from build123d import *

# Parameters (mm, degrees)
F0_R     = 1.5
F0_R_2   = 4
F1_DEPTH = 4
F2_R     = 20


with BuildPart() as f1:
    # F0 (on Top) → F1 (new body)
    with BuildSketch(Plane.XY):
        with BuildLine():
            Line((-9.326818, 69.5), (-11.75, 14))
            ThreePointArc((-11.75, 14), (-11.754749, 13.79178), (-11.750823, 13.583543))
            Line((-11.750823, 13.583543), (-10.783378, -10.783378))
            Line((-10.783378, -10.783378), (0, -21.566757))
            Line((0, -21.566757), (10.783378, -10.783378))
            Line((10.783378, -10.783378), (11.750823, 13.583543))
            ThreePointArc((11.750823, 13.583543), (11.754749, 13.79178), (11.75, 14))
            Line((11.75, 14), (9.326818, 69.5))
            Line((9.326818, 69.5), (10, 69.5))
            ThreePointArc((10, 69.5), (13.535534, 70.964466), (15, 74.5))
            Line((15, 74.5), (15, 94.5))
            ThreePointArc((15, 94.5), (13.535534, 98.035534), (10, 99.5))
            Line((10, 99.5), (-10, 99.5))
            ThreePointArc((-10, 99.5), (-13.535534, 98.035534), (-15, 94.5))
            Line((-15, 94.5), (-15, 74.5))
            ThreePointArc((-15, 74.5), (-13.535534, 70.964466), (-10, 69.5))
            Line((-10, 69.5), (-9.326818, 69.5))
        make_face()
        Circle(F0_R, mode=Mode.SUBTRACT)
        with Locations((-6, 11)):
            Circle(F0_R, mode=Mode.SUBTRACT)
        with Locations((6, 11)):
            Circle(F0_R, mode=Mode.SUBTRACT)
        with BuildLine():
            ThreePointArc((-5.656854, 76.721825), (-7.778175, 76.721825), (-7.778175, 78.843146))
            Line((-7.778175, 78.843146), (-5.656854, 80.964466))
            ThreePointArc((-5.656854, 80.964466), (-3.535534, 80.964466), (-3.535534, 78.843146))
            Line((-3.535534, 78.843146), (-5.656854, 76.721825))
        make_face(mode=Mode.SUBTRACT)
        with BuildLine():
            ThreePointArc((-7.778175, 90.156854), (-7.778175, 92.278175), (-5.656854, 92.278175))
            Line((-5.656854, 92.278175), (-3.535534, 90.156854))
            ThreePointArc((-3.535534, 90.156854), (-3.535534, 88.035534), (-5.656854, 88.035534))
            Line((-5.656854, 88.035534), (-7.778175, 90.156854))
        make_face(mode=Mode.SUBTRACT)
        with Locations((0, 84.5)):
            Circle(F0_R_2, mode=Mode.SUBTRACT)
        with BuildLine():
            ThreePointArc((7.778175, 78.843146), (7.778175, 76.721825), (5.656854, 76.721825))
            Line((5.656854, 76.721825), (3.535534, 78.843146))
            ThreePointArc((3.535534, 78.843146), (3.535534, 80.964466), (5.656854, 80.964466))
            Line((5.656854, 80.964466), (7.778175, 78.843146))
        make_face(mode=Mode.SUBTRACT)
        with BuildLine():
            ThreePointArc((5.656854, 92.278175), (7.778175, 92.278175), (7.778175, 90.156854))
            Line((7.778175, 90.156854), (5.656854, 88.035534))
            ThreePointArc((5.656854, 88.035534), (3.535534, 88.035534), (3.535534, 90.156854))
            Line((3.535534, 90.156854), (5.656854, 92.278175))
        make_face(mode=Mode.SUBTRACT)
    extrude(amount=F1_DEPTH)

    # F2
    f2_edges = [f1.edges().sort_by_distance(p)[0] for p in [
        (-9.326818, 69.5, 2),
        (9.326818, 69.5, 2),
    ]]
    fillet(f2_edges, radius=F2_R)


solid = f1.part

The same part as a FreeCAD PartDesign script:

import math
import FreeCAD as App
import Part
import Sketcher

V = App.Vector
Q = App.Units.Quantity


def edges_at(feature, points):
    """Names of the edges that pass closest to the given points."""
    edges = feature.Shape.Edges
    near = lambda p: min(range(len(edges)), key=lambda i: edges[i].distToShape(Part.Vertex(*p))[0])
    return sorted({f"Edge{near(p) + 1}" for p in points})

doc = App.newDocument("Part")
body = doc.addObject("PartDesign::Body", "Body")

# Sketch on XY plane
sketch1 = body.newObject("Sketcher::SketchObject", "Sketch")
sketch1.AttachmentSupport = (doc.getObject("XY_Plane"), [""])
sketch1.MapMode = "FlatFace"
sketch1.addGeometry(Part.LineSegment(V(-9.33, 69.5, 0), V(-11.75, 14, 0)), False)
sketch1.addGeometry(Part.ArcOfCircle(Part.Circle(V(-6.75, 13.78, 0), V(0, 0, 1), 5), math.radians(177.5), math.radians(182.27)), False)
sketch1.addGeometry(Part.LineSegment(V(-11.75, 13.58, 0), V(-10.78, -10.78, 0)), False)
sketch1.addGeometry(Part.LineSegment(V(-10.78, -10.78, 0), V(0, -21.57, 0)), False)
sketch1.addGeometry(Part.LineSegment(V(0, -21.57, 0), V(10.78, -10.78, 0)), False)
sketch1.addGeometry(Part.LineSegment(V(10.78, -10.78, 0), V(11.75, 13.58, 0)), False)
sketch1.addGeometry(Part.ArcOfCircle(Part.Circle(V(6.75, 13.78, 0), V(0, 0, 1), 5), math.radians(-2.27), math.radians(2.5)), False)
sketch1.addGeometry(Part.LineSegment(V(11.75, 14, 0), V(9.33, 69.5, 0)), False)
sketch1.addGeometry(Part.LineSegment(V(9.33, 69.5, 0), V(10, 69.5, 0)), False)
sketch1.addGeometry(Part.ArcOfCircle(Part.Circle(V(10, 74.5, 0), V(0, 0, 1), 5), math.radians(-90), math.radians(0)), False)
sketch1.addGeometry(Part.LineSegment(V(15, 74.5, 0), V(15, 94.5, 0)), False)
sketch1.addGeometry(Part.ArcOfCircle(Part.Circle(V(10, 94.5, 0), V(0, 0, 1), 5), math.radians(0), math.radians(90)), False)
sketch1.addGeometry(Part.LineSegment(V(10, 99.5, 0), V(-10, 99.5, 0)), False)
sketch1.addGeometry(Part.ArcOfCircle(Part.Circle(V(-10, 94.5, 0), V(0, 0, 1), 5), math.radians(90), math.radians(180)), False)
sketch1.addGeometry(Part.LineSegment(V(-15, 94.5, 0), V(-15, 74.5, 0)), False)
sketch1.addGeometry(Part.ArcOfCircle(Part.Circle(V(-10, 74.5, 0), V(0, 0, 1), 5), math.radians(180), math.radians(270)), False)
sketch1.addGeometry(Part.LineSegment(V(-10, 69.5, 0), V(-9.33, 69.5, 0)), False)
sketch1.addGeometry(Part.Circle(V(-6, 11, 0), V(0, 0, 1), 1.5), False)
sketch1.addGeometry(Part.Circle(V(0, 0, 0), V(0, 0, 1), 1.5), False)
sketch1.addGeometry(Part.Circle(V(6, 11, 0), V(0, 0, 1), 1.5), False)
sketch1.addGeometry(Part.LineSegment(V(-3.54, 78.84, 0), V(-5.66, 76.72, 0)), False)
sketch1.addGeometry(Part.ArcOfCircle(Part.Circle(V(-6.72, 77.78, 0), V(0, 0, 1), 1.5), math.radians(135), math.radians(315)), False)
sketch1.addGeometry(Part.LineSegment(V(-7.78, 78.84, 0), V(-5.66, 80.96, 0)), False)
sketch1.addGeometry(Part.ArcOfCircle(Part.Circle(V(-4.6, 79.9, 0), V(0, 0, 1), 1.5), math.radians(-45), math.radians(135)), False)
sketch1.addGeometry(Part.LineSegment(V(-5.66, 88.04, 0), V(-7.78, 90.16, 0)), False)
sketch1.addGeometry(Part.ArcOfCircle(Part.Circle(V(-6.72, 91.22, 0), V(0, 0, 1), 1.5), math.radians(45), math.radians(225)), False)
sketch1.addGeometry(Part.LineSegment(V(-5.66, 92.28, 0), V(-3.54, 90.16, 0)), False)
sketch1.addGeometry(Part.ArcOfCircle(Part.Circle(V(-4.6, 89.1, 0), V(0, 0, 1), 1.5), math.radians(-135), math.radians(45)), False)
sketch1.addGeometry(Part.Circle(V(0, 84.5, 0), V(0, 0, 1), 4), False)
sketch1.addGeometry(Part.LineSegment(V(5.66, 80.96, 0), V(7.78, 78.84, 0)), False)
sketch1.addGeometry(Part.ArcOfCircle(Part.Circle(V(6.72, 77.78, 0), V(0, 0, 1), 1.5), math.radians(-135), math.radians(45)), False)
sketch1.addGeometry(Part.LineSegment(V(5.66, 76.72, 0), V(3.54, 78.84, 0)), False)
sketch1.addGeometry(Part.ArcOfCircle(Part.Circle(V(4.6, 79.9, 0), V(0, 0, 1), 1.5), math.radians(45), math.radians(225)), False)
sketch1.addGeometry(Part.LineSegment(V(3.54, 90.16, 0), V(5.66, 92.28, 0)), False)
sketch1.addGeometry(Part.ArcOfCircle(Part.Circle(V(6.72, 91.22, 0), V(0, 0, 1), 1.5), math.radians(-45), math.radians(135)), False)
sketch1.addGeometry(Part.LineSegment(V(7.78, 90.16, 0), V(5.66, 88.04, 0)), False)
sketch1.addGeometry(Part.ArcOfCircle(Part.Circle(V(4.6, 89.1, 0), V(0, 0, 1), 1.5), math.radians(135), math.radians(315)), False)
sketch1.addConstraint(Sketcher.Constraint("Coincident", 0, 2, 1, 1))
sketch1.addConstraint(Sketcher.Constraint("Coincident", 1, 2, 2, 1))
sketch1.addConstraint(Sketcher.Constraint("Coincident", 2, 2, 3, 1))
sketch1.addConstraint(Sketcher.Constraint("Coincident", 3, 2, 4, 1))
sketch1.addConstraint(Sketcher.Constraint("Coincident", 4, 2, 5, 1))
sketch1.addConstraint(Sketcher.Constraint("Coincident", 5, 2, 6, 1))
sketch1.addConstraint(Sketcher.Constraint("Coincident", 6, 2, 7, 1))
sketch1.addConstraint(Sketcher.Constraint("Coincident", 7, 2, 8, 1))
sketch1.addConstraint(Sketcher.Constraint("Tangent", 8, 2, 9, 1))
sketch1.addConstraint(Sketcher.Constraint("Tangent", 9, 2, 10, 1))
sketch1.addConstraint(Sketcher.Constraint("Tangent", 10, 2, 11, 1))
sketch1.addConstraint(Sketcher.Constraint("Tangent", 11, 2, 12, 1))
sketch1.addConstraint(Sketcher.Constraint("Tangent", 12, 2, 13, 1))
sketch1.addConstraint(Sketcher.Constraint("Tangent", 13, 2, 14, 1))
sketch1.addConstraint(Sketcher.Constraint("Tangent", 14, 2, 15, 1))
sketch1.addConstraint(Sketcher.Constraint("Tangent", 15, 2, 16, 1))
sketch1.addConstraint(Sketcher.Constraint("Coincident", 16, 2, 0, 1))
sketch1.addConstraint(Sketcher.Constraint("Tangent", 20, 2, 21, 2))
sketch1.addConstraint(Sketcher.Constraint("Tangent", 21, 1, 22, 1))
sketch1.addConstraint(Sketcher.Constraint("Tangent", 22, 2, 23, 2))
sketch1.addConstraint(Sketcher.Constraint("Tangent", 23, 1, 20, 1))
sketch1.addConstraint(Sketcher.Constraint("Tangent", 24, 2, 25, 2))
sketch1.addConstraint(Sketcher.Constraint("Tangent", 25, 1, 26, 1))
sketch1.addConstraint(Sketcher.Constraint("Tangent", 26, 2, 27, 2))
sketch1.addConstraint(Sketcher.Constraint("Tangent", 27, 1, 24, 1))
sketch1.addConstraint(Sketcher.Constraint("Tangent", 29, 2, 30, 2))
sketch1.addConstraint(Sketcher.Constraint("Tangent", 30, 1, 31, 1))
sketch1.addConstraint(Sketcher.Constraint("Tangent", 31, 2, 32, 2))
sketch1.addConstraint(Sketcher.Constraint("Tangent", 32, 1, 29, 1))
sketch1.addConstraint(Sketcher.Constraint("Tangent", 33, 2, 34, 2))
sketch1.addConstraint(Sketcher.Constraint("Tangent", 34, 1, 35, 1))
sketch1.addConstraint(Sketcher.Constraint("Tangent", 35, 2, 36, 2))
sketch1.addConstraint(Sketcher.Constraint("Tangent", 36, 1, 33, 1))
sketch1.addConstraint(Sketcher.Constraint("Horizontal", 8))
sketch1.addConstraint(Sketcher.Constraint("Vertical", 10))
sketch1.addConstraint(Sketcher.Constraint("Horizontal", 12))
sketch1.addConstraint(Sketcher.Constraint("Vertical", 14))
sketch1.addConstraint(Sketcher.Constraint("Horizontal", 16))
sketch1.addConstraint(Sketcher.Constraint("Coincident", 18, 3, -1, 1))
sketch1.addConstraint(Sketcher.Constraint("Equal", 1, 6))
sketch1.addConstraint(Sketcher.Constraint("Equal", 9, 11))
sketch1.addConstraint(Sketcher.Constraint("Equal", 11, 13))
sketch1.addConstraint(Sketcher.Constraint("Equal", 13, 15))
sketch1.addConstraint(Sketcher.Constraint("Equal", 17, 18))
sketch1.addConstraint(Sketcher.Constraint("Equal", 18, 19))
sketch1.addConstraint(Sketcher.Constraint("Equal", 19, 21))
sketch1.addConstraint(Sketcher.Constraint("Equal", 21, 23))
sketch1.addConstraint(Sketcher.Constraint("Equal", 23, 25))
sketch1.addConstraint(Sketcher.Constraint("Equal", 25, 27))
sketch1.addConstraint(Sketcher.Constraint("Equal", 27, 30))
sketch1.addConstraint(Sketcher.Constraint("Equal", 30, 32))
sketch1.addConstraint(Sketcher.Constraint("Equal", 32, 34))
sketch1.addConstraint(Sketcher.Constraint("Equal", 34, 36))
sketch1.addConstraint(Sketcher.Constraint("Symmetric", 1, 3, 6, 3, -2))
sketch1.addConstraint(Sketcher.Constraint("Symmetric", 9, 3, 15, 3, -2))
sketch1.addConstraint(Sketcher.Constraint("Symmetric", 17, 3, 19, 3, -2))
sketch1.addConstraint(Sketcher.Constraint("Symmetric", 21, 3, 30, 3, -2))
sketch1.addConstraint(Sketcher.Constraint("Symmetric", 23, 3, 32, 3, -2))
sketch1.addConstraint(Sketcher.Constraint("Symmetric", 25, 3, 34, 3, -2))
sketch1.addConstraint(Sketcher.Constraint("Symmetric", 27, 3, 36, 3, -2))
sketch1.addConstraint(Sketcher.Constraint("Symmetric", 2, 2, 4, 2, -2))
sketch1.addConstraint(Sketcher.Constraint("PointOnObject", 28, 3, -2))
sketch1.addConstraint(Sketcher.Constraint("PointOnObject", 3, 2, -2))
sketch1.addConstraint(Sketcher.Constraint("Perpendicular", 3, 4))
sketch1.addConstraint(Sketcher.Constraint("Parallel", 4, 20))
sketch1.addConstraint(Sketcher.Constraint("Perpendicular", 22, 24))
sketch1.addConstraint(Sketcher.Constraint("Horizontal", 1, 2, 5, 2))
sketch1.addConstraint(Sketcher.Constraint("Horizontal", 0, 2, 6, 2))
sketch1.addConstraint(Sketcher.Constraint("Horizontal", 21, 1, 23, 1))
sketch1.addConstraint(Sketcher.Constraint("Horizontal", 24, 2, 26, 2))
sketch1.addConstraint(Sketcher.Constraint("Vertical", 21, 3, 25, 3))
sketch1.addConstraint(Sketcher.Constraint("Equal", 8, 16))
sketch1.addConstraint(Sketcher.Constraint("Equal", 12, 10))
sketch1.addConstraint(Sketcher.Constraint("Diameter", 17, Q("3 mm")))
sketch1.addConstraint(Sketcher.Constraint("Diameter", 28, Q("8 mm")))
sketch1.addConstraint(Sketcher.Constraint("Radius", 9, Q("5 mm")))
sketch1.addConstraint(Sketcher.Constraint("DistanceX", 12, 2, 12, 1, Q("20 mm")))
sketch1.addConstraint(Sketcher.Constraint("DistanceX", 17, 3, -1, 1, Q("6 mm")))
sketch1.addConstraint(Sketcher.Constraint("DistanceY", -1, 1, 17, 3, Q("11 mm")))
sketch1.addConstraint(Sketcher.Constraint("DistanceY", -1, 1, 0, 2, Q("14 mm")))
sketch1.addConstraint(Sketcher.Constraint("Angle", 0, Q("-92.5 deg")))
sketch1.addConstraint(Sketcher.Constraint("DistanceY", 9, 3, 28, 3, Q("10 mm")))
sketch1.addConstraint(Sketcher.Constraint("DistanceY", -1, 1, 9, 3, Q("74.5 mm")))
sketch1.addConstraint(Sketcher.Constraint("Distance", 3, Q("15.25 mm")))
sketch1.addConstraint(Sketcher.Constraint("DistanceX", 0, 2, -1, 1, Q("11.75 mm")))
sketch1.addConstraint(Sketcher.Constraint("Radius", 1, Q("5.000347 mm")))
sketch1.addConstraint(Sketcher.Constraint("DistanceY", -1, 1, 1, 3, Q("13.781898 mm")))
sketch1.addConstraint(Sketcher.Constraint("Distance", 2, Q("24.386119 mm")))
sketch1.addConstraint(Sketcher.Constraint("DistanceY", 2, 2, -1, 1, Q("10.783378 mm")))
sketch1.addConstraint(Sketcher.Constraint("DistanceY", 23, 3, 25, 3, Q("11.313708 mm")))
sketch1.addConstraint(Sketcher.Constraint("DistanceX", 23, 3, 30, 3, Q("11.313709 mm")))
sketch1.addConstraint(Sketcher.Constraint("DistanceY", -1, 1, 21, 3, Q("77.782486 mm")))
pad1 = body.newObject("PartDesign::Pad", "Pad")
pad1.Profile = sketch1
pad1.Length = 4
doc.recompute()

fillet = body.newObject("PartDesign::Fillet", "Fillet")
fillet.Base = (pad1, edges_at(pad1, [(-9.327, 69.5, 2), (9.327, 69.5, 2)]))
fillet.Radius = 20

doc.recompute()
